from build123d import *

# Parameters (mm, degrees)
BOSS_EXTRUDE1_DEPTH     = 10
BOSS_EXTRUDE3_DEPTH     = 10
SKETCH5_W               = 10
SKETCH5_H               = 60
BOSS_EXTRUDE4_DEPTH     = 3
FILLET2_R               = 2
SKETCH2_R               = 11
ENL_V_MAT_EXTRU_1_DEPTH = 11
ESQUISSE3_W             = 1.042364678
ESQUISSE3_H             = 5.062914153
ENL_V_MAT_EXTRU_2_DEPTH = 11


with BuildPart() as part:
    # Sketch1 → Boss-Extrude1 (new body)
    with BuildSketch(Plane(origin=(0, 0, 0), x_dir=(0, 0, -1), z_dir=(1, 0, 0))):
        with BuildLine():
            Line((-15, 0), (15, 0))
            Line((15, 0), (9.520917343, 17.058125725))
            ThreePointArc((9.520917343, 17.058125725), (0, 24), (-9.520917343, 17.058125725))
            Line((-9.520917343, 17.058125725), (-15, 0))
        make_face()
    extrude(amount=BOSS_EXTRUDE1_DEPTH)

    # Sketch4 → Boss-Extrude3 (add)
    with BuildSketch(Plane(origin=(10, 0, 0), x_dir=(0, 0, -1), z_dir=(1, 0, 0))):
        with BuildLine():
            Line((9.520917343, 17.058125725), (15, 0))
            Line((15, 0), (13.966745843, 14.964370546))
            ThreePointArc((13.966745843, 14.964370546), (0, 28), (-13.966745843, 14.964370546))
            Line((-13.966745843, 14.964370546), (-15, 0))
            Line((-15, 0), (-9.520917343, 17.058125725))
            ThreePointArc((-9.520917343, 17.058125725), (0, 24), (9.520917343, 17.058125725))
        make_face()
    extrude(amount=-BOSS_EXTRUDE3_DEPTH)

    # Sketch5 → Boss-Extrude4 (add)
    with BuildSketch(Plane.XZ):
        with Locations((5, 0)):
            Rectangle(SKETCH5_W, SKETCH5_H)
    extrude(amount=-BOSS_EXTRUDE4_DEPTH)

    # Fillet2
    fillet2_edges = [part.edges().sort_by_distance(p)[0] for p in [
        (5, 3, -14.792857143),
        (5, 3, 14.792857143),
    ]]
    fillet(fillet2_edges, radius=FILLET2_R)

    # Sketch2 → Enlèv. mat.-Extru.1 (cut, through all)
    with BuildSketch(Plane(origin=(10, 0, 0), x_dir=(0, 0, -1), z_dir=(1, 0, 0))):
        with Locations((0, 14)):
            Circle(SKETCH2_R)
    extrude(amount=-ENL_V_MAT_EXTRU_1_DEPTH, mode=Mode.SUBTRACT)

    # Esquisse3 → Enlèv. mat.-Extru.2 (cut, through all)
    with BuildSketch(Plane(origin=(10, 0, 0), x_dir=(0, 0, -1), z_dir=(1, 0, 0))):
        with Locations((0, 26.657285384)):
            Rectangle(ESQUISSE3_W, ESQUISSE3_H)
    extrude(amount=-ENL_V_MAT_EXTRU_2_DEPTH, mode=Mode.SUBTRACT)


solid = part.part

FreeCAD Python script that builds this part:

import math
import FreeCAD as App
import Part
import Sketcher
Q = App.Units.Quantity


def edges_at(feature, points):
    """Names of the edges that pass closest to the given points."""
    edges = feature.Shape.Edges
    near = lambda p: min(range(len(edges)), key=lambda i: edges[i].distToShape(Part.Vertex(*p))[0])
    return sorted({f"Edge{near(p) + 1}" for p in points})


def add_polygon(sketch, points):
    """Adds a closed chain of lines whose ends are joined by coincident constraints."""
    first, n = sketch.GeometryCount, len(points)
    for a, b in zip(points, points[1:] + points[:1]):
        sketch.addGeometry(Part.LineSegment(App.Vector(*a, 0), App.Vector(*b, 0)), False)
    for i in range(n):
        sketch.addConstraint(Sketcher.Constraint("Coincident", first + i, 2, first + (i + 1) % n, 1))

doc = App.newDocument("Part")
body = doc.addObject("PartDesign::Body", "Body")

# Sketch on YZ plane
sketch1 = doc.addObject("Sketcher::SketchObject", "Sketch")
body.addObject(sketch1)
sketch1.AttachmentSupport = (doc.YZ_Plane, [""])
sketch1.MapMode = "FlatFace"
sketch1.addGeometry(Part.LineSegment(App.Vector(0, 15, 0), App.Vector(0, -15, 0)), False)
sketch1.addGeometry(Part.LineSegment(App.Vector(0, -15, 0), App.Vector(17, -10, 0)), False)
sketch1.addGeometry(Part.ArcOfCircle(Part.Circle(App.Vector(14, 0, 0), App.Vector(0, 0, 1), 10), math.radians(-72), math.radians(72)), False)
sketch1.addGeometry(Part.LineSegment(App.Vector(17, 10, 0), App.Vector(0, 15, 0)), False)
sketch1.addConstraint(Sketcher.Constraint("Coincident", 0, 2, 1, 1))
sketch1.addConstraint(Sketcher.Constraint("Tangent", 1, 2, 2, 1))
sketch1.addConstraint(Sketcher.Constraint("Tangent", 2, 2, 3, 1))
sketch1.addConstraint(Sketcher.Constraint("Coincident", 3, 2, 0, 1))
sketch1.addConstraint(Sketcher.Constraint("Vertical", 0))
sketch1.addConstraint(Sketcher.Constraint("Symmetric", 0, 2, 3, 2, -1, 1))
sketch1.addConstraint(Sketcher.Constraint("PointOnObject", 2, 3, -1))
sketch1.addConstraint(Sketcher.Constraint("Radius", 2, Q("10 mm")))
sketch1.addConstraint(Sketcher.Constraint("DistanceY", 0, 2, 0, 1, Q("30 mm")))
sketch1.addConstraint(Sketcher.Constraint("DistanceX", -1, 1, 2, 3, Q("14 mm")))
pad1 = doc.addObject("PartDesign::Pad", "Pad")
body.addObject(pad1)
pad1.Profile = sketch1
pad1.Length = 10

# Sketch on YZ plane
sketch2 = doc.addObject("Sketcher::SketchObject", "Sketch001")
body.addObject(sketch2)
sketch2.AttachmentSupport = (doc.YZ_Plane, [""])
sketch2.MapMode = "FlatFace"
sketch2.AttachmentOffset = App.Placement(App.Vector(0, 0, 10), App.Rotation())
sketch2.addGeometry(Part.LineSegment(App.Vector(17, -10, 0), App.Vector(0, -15, 0)), False)
sketch2.addGeometry(Part.LineSegment(App.Vector(0, -15, 0), App.Vector(15, -14, 0)), False)
sketch2.addGeometry(Part.ArcOfCircle(Part.Circle(App.Vector(14, 0, 0), App.Vector(0, 0, 1), 14), math.radians(-86), math.radians(86)), False)
sketch2.addGeometry(Part.LineSegment(App.Vector(15, 14, 0), App.Vector(0, 15, 0)), False)
sketch2.addGeometry(Part.LineSegment(App.Vector(0, 15, 0), App.Vector(17, 10, 0)), False)
sketch2.addGeometry(Part.ArcOfCircle(Part.Circle(App.Vector(14, 0, 0), App.Vector(0, 0, 1), 10), math.radians(-72), math.radians(72)), False)
sketch2.addConstraint(Sketcher.Constraint("Coincident", 0, 2, 1, 1))
sketch2.addConstraint(Sketcher.Constraint("Tangent", 1, 2, 2, 1))
sketch2.addConstraint(Sketcher.Constraint("Tangent", 2, 2, 3, 1))
sketch2.addConstraint(Sketcher.Constraint("Coincident", 3, 2, 4, 1))
sketch2.addConstraint(Sketcher.Constraint("Tangent", 4, 2, 5, 2))
sketch2.addConstraint(Sketcher.Constraint("Tangent", 5, 1, 0, 1))
sketch2.addConstraint(Sketcher.Constraint("Coincident", 5, 3, 2, 3))
sketch2.addConstraint(Sketcher.Constraint("Symmetric", 0, 2, 3, 2, -1, 1))
sketch2.addConstraint(Sketcher.Constraint("Symmetric", 1, 2, 2, 2, -1))
sketch2.addConstraint(Sketcher.Constraint("Radius", 2, Q("14 mm")))
sketch2.addConstraint(Sketcher.Constraint("Radius", 5, Q("10 mm")))
sketch2.addConstraint(Sketcher.Constraint("Distance", 1, Q("15 mm")))
sketch2.addConstraint(Sketcher.Constraint("DistanceX", -1, 1, 2, 3, Q("14 mm")))
pad2 = doc.addObject("PartDesign::Pad", "Pad001")
body.addObject(pad2)
pad2.Profile = sketch2
pad2.Length = 10
pad2.Reversed = True

# Sketch on XZ plane
sketch3 = doc.addObject("Sketcher::SketchObject", "Sketch002")
body.addObject(sketch3)
sketch3.AttachmentSupport = (doc.XZ_Plane, [""])
sketch3.MapMode = "FlatFace"
add_polygon(sketch3, [(0, 30), (0, -30), (10, -30), (10, 30)])  # lines 0-3
sketch3.addConstraint(Sketcher.Constraint("Vertical", 0))
sketch3.addConstraint(Sketcher.Constraint("Horizontal", 1))
sketch3.addConstraint(Sketcher.Constraint("Vertical", 2))
sketch3.addConstraint(Sketcher.Constraint("Horizontal", 3))
sketch3.addConstraint(Sketcher.Constraint("Symmetric", 0, 2, 3, 2, -1, 1))
sketch3.addConstraint(Sketcher.Constraint("DistanceX", 1, 1, 1, 2, Q("10 mm")))
sketch3.addConstraint(Sketcher.Constraint("DistanceY", 0, 2, 0, 1, Q("60 mm")))
pad3 = doc.addObject("PartDesign::Pad", "Pad002")
body.addObject(pad3)
pad3.Profile = sketch3
pad3.Length = 3
pad3.Reversed = True
doc.recompute()

fillet = doc.addObject("PartDesign::Fillet", "Fillet")
body.addObject(fillet)
fillet.Base = (pad3, edges_at(pad3, [(5, 3, -14.793), (5, 3, 14.793)]))
fillet.Radius = 2

# Sketch on YZ plane
sketch4 = doc.addObject("Sketcher::SketchObject", "Sketch003")
body.addObject(sketch4)
sketch4.AttachmentSupport = (doc.YZ_Plane, [""])
sketch4.MapMode = "FlatFace"
sketch4.AttachmentOffset = App.Placement(App.Vector(0, 0, 10), App.Rotation())
sketch4.addGeometry(Part.Circle(App.Vector(14, 0, 0), App.Vector(0, 0, 1), 11), False)
sketch4.addConstraint(Sketcher.Constraint("PointOnObject", 0, 3, -1))
sketch4.addConstraint(Sketcher.Constraint("Diameter", 0, Q("22 mm")))
sketch4.addConstraint(Sketcher.Constraint("DistanceX", -1, 1, 0, 3, Q("14 mm")))
pocket1 = doc.addObject("PartDesign::Pocket", "Pocket")
body.addObject(pocket1)
pocket1.Profile = sketch4
pocket1.Type = "ThroughAll"

# Sketch on YZ plane
sketch5 = doc.addObject("Sketcher::SketchObject", "Sketch004")
body.addObject(sketch5)
sketch5.AttachmentSupport = (doc.YZ_Plane, [""])
sketch5.MapMode = "FlatFace"
sketch5.AttachmentOffset = App.Placement(App.Vector(0, 0, 10), App.Rotation())
add_polygon(sketch5, [(29.2, 0.5), (24.1, 0.5), (24.1, -0.5), (29.2, -0.5)])  # lines 0-3
sketch5.addConstraint(Sketcher.Constraint("Horizontal", 0))
sketch5.addConstraint(Sketcher.Constraint("Vertical", 1))
sketch5.addConstraint(Sketcher.Constraint("Horizontal", 2))
sketch5.addConstraint(Sketcher.Constraint("Vertical", 3))
sketch5.addConstraint(Sketcher.Constraint("DistanceX", 0, 2, 0, 1, Q("5.062914 mm")))
sketch5.addConstraint(Sketcher.Constraint("DistanceY", 1, 2, 1, 1, Q("1.042365 mm")))
sketch5.addConstraint(Sketcher.Constraint("DistanceX", -1, 1, 0, 2, Q("24.125828 mm")))
sketch5.addConstraint(Sketcher.Constraint("DistanceY", -1, 1, 0, 2, Q("0.521182 mm")))
pocket2 = doc.addObject("PartDesign::Pocket", "Pocket001")
body.addObject(pocket2)
pocket2.Profile = sketch5
pocket2.Type = "ThroughAll"

doc.recompute()
